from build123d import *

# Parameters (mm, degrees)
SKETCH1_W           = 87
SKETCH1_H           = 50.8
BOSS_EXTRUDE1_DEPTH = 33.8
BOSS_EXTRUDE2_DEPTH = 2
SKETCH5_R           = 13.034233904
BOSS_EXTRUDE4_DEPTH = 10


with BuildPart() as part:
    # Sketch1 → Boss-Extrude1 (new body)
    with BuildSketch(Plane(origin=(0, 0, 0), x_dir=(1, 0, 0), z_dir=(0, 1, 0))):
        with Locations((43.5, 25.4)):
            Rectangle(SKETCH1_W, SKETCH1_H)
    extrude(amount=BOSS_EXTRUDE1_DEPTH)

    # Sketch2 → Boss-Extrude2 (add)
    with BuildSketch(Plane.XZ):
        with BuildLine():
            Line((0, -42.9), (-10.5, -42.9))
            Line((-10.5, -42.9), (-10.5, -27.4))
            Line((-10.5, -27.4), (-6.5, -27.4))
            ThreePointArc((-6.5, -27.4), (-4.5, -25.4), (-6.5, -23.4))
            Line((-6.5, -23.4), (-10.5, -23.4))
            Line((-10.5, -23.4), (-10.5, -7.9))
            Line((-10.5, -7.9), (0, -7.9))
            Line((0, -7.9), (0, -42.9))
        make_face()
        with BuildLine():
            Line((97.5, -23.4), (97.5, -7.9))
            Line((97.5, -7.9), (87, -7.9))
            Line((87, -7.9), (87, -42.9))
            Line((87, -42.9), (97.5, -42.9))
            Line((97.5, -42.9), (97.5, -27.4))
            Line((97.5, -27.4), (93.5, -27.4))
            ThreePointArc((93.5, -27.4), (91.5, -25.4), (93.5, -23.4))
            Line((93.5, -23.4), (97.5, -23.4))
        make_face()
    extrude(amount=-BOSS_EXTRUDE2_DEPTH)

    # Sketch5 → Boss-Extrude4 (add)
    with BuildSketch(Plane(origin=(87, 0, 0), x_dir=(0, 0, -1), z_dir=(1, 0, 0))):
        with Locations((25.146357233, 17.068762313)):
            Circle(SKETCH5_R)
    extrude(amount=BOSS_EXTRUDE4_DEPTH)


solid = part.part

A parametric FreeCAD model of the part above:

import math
import FreeCAD as App
import Part
import Sketcher

V = App.Vector
Q = App.Units.Quantity

doc = App.newDocument("Part")
body = doc.addObject("PartDesign::Body", "Body")

# Sketch on XZ plane
sketch1 = body.newObject("Sketcher::SketchObject", "Sketch")
sketch1.AttachmentSupport = (doc.getObject("XZ_Plane"), [""])
sketch1.MapMode = "FlatFace"
sketch1.addGeometry([
    Part.LineSegment(V(0, -50.8, 0), V(0, 0, 0)),
    Part.LineSegment(V(0, 0, 0), V(87, 0, 0)),
    Part.LineSegment(V(87, 0, 0), V(87, -50.8, 0)),
    Part.LineSegment(V(87, -50.8, 0), V(0, -50.8, 0)),
], False)
sketch1.addConstraint([
    Sketcher.Constraint("Coincident", 0, 2, 1, 1),
    Sketcher.Constraint("Coincident", 1, 2, 2, 1),
    Sketcher.Constraint("Coincident", 2, 2, 3, 1),
    Sketcher.Constraint("Coincident", 3, 2, 0, 1),
    Sketcher.Constraint("Vertical", 0),
    Sketcher.Constraint("Horizontal", 1),
    Sketcher.Constraint("Vertical", 2),
    Sketcher.Constraint("Horizontal", 3),
    Sketcher.Constraint("Coincident", 0, 2, -1, 1),
    Sketcher.Constraint("DistanceX", 1, 1, 1, 2, Q("87 mm")),
    Sketcher.Constraint("DistanceY", 0, 1, 0, 2, Q("50.8 mm")),
])
pad1 = body.newObject("PartDesign::Pad", "Pad")
pad1.Profile = sketch1
pad1.Length = 33.8
pad1.Reversed = True

# Sketch on XZ plane
sketch2 = body.newObject("Sketcher::SketchObject", "Sketch001")
sketch2.AttachmentSupport = (doc.getObject("XZ_Plane"), [""])
sketch2.MapMode = "FlatFace"
sketch2.addGeometry([
    Part.LineSegment(V(-10.5, -42.9, 0), V(0, -42.9, 0)),  # 0
    Part.LineSegment(V(0, -42.9, 0), V(0, -7.9, 0)),  # 1
    Part.LineSegment(V(0, -7.9, 0), V(-10.5, -7.9, 0)),  # 2
    Part.LineSegment(V(-10.5, -7.9, 0), V(-10.5, -23.4, 0)),  # 3
    Part.LineSegment(V(-10.5, -23.4, 0), V(-6.5, -23.4, 0)),  # 4
    Part.ArcOfCircle(Part.Circle(V(-6.5, -25.4, 0), V(0, 0, 1), 2), math.radians(-90), math.radians(90)),  # 5
    Part.LineSegment(V(-6.5, -27.4, 0), V(-10.5, -27.4, 0)),  # 6
    Part.LineSegment(V(-10.5, -27.4, 0), V(-10.5, -42.9, 0)),  # 7
    Part.LineSegment(V(97.5, -23.4, 0), V(97.5, -7.9, 0)),  # 8
    Part.LineSegment(V(97.5, -7.9, 0), V(87, -7.9, 0)),  # 9
    Part.LineSegment(V(87, -7.9, 0), V(87, -42.9, 0)),  # 10
    Part.LineSegment(V(87, -42.9, 0), V(97.5, -42.9, 0)),  # 11
    Part.LineSegment(V(97.5, -42.9, 0), V(97.5, -27.4, 0)),  # 12
    Part.LineSegment(V(97.5, -27.4, 0), V(93.5, -27.4, 0)),  # 13
    Part.ArcOfCircle(Part.Circle(V(93.5, -25.4, 0), V(0, 0, 1), 2), math.radians(90), math.radians(270)),  # 14
    Part.LineSegment(V(93.5, -23.4, 0), V(97.5, -23.4, 0)),  # 15
], False)
sketch2.addConstraint([
    Sketcher.Constraint("Coincident", 0, 2, 1, 1),
    Sketcher.Constraint("Coincident", 1, 2, 2, 1),
    Sketcher.Constraint("Coincident", 2, 2, 3, 1),
    Sketcher.Constraint("Coincident", 3, 2, 4, 1),
    Sketcher.Constraint("Tangent", 4, 2, 5, 2),
    Sketcher.Constraint("Tangent", 5, 1, 6, 1),
    Sketcher.Constraint("Coincident", 6, 2, 7, 1),
    Sketcher.Constraint("Coincident", 7, 2, 0, 1),
    Sketcher.Constraint("Coincident", 8, 2, 9, 1),
    Sketcher.Constraint("Coincident", 9, 2, 10, 1),
    Sketcher.Constraint("Coincident", 10, 2, 11, 1),
    Sketcher.Constraint("Coincident", 11, 2, 12, 1),
    Sketcher.Constraint("Coincident", 12, 2, 13, 1),
    Sketcher.Constraint("Tangent", 13, 2, 14, 2),
    Sketcher.Constraint("Tangent", 14, 1, 15, 1),
    Sketcher.Constraint("Coincident", 15, 2, 8, 1),
    Sketcher.Constraint("Horizontal", 0),
    Sketcher.Constraint("Vertical", 1),
    Sketcher.Constraint("Horizontal", 2),
    Sketcher.Constraint("Vertical", 3),
    Sketcher.Constraint("Horizontal", 4),
    Sketcher.Constraint("Horizontal", 6),
    Sketcher.Constraint("Vertical", 7),
    Sketcher.Constraint("Vertical", 8),
    Sketcher.Constraint("Horizontal", 9),
    Sketcher.Constraint("Vertical", 10),
    Sketcher.Constraint("Horizontal", 11),
    Sketcher.Constraint("Vertical", 12),
    Sketcher.Constraint("Horizontal", 13),
    Sketcher.Constraint("Horizontal", 15),
    Sketcher.Constraint("Equal", 5, 14),
    Sketcher.Constraint("PointOnObject", 0, 2, -2),
    Sketcher.Constraint("Horizontal", 5, 3, 14, 3),
    Sketcher.Constraint("Horizontal", 2, 2, 8, 2),
    Sketcher.Constraint("Horizontal", 7, 2, 10, 2),
    Sketcher.Constraint("Vertical", 3, 2, 6, 2),
    Sketcher.Constraint("Vertical", 8, 2, 11, 2),
    Sketcher.Constraint("Equal", 2, 9),
    Sketcher.Constraint("Equal", 6, 13),
    Sketcher.Constraint("Equal", 3, 7),
    Sketcher.Constraint("Radius", 5, Q("2 mm")),
    Sketcher.Constraint("DistanceX", 4, 1, 4, 2, Q("4 mm")),
    Sketcher.Constraint("DistanceY", 1, 1, 1, 2, Q("35 mm")),
    Sketcher.Constraint("DistanceX", 0, 1, 0, 2, Q("10.5 mm")),
    Sketcher.Constraint("DistanceX", -1, 1, 9, 2, Q("87 mm")),
    Sketcher.Constraint("DistanceY", 5, 3, -1, 1, Q("25.4 mm")),
])
pad2 = body.newObject("PartDesign::Pad", "Pad001")
pad2.Profile = sketch2
pad2.Length = 2
pad2.Reversed = True

# Sketch on YZ plane
sketch3 = body.newObject("Sketcher::SketchObject", "Sketch002")
sketch3.AttachmentSupport = (doc.getObject("YZ_Plane"), [""])
sketch3.MapMode = "FlatFace"
sketch3.AttachmentOffset = App.Placement(V(0, 0, 87), App.Rotation())
sketch3.addGeometry(Part.Circle(V(17.068762, -25.146357, 0), V(0, 0, 1), 13.034234), False)
sketch3.addConstraint([
    Sketcher.Constraint("Diameter", 0, Q("26.068468 mm")),
    Sketcher.Constraint("DistanceX", -1, 1, 0, 3, Q("17.068762 mm")),
    Sketcher.Constraint("DistanceY", 0, 3, -1, 1, Q("25.146357 mm")),
])
pad3 = body.newObject("PartDesign::Pad", "Pad002")
pad3.Profile = sketch3
pad3.Length = 10

doc.recompute()
